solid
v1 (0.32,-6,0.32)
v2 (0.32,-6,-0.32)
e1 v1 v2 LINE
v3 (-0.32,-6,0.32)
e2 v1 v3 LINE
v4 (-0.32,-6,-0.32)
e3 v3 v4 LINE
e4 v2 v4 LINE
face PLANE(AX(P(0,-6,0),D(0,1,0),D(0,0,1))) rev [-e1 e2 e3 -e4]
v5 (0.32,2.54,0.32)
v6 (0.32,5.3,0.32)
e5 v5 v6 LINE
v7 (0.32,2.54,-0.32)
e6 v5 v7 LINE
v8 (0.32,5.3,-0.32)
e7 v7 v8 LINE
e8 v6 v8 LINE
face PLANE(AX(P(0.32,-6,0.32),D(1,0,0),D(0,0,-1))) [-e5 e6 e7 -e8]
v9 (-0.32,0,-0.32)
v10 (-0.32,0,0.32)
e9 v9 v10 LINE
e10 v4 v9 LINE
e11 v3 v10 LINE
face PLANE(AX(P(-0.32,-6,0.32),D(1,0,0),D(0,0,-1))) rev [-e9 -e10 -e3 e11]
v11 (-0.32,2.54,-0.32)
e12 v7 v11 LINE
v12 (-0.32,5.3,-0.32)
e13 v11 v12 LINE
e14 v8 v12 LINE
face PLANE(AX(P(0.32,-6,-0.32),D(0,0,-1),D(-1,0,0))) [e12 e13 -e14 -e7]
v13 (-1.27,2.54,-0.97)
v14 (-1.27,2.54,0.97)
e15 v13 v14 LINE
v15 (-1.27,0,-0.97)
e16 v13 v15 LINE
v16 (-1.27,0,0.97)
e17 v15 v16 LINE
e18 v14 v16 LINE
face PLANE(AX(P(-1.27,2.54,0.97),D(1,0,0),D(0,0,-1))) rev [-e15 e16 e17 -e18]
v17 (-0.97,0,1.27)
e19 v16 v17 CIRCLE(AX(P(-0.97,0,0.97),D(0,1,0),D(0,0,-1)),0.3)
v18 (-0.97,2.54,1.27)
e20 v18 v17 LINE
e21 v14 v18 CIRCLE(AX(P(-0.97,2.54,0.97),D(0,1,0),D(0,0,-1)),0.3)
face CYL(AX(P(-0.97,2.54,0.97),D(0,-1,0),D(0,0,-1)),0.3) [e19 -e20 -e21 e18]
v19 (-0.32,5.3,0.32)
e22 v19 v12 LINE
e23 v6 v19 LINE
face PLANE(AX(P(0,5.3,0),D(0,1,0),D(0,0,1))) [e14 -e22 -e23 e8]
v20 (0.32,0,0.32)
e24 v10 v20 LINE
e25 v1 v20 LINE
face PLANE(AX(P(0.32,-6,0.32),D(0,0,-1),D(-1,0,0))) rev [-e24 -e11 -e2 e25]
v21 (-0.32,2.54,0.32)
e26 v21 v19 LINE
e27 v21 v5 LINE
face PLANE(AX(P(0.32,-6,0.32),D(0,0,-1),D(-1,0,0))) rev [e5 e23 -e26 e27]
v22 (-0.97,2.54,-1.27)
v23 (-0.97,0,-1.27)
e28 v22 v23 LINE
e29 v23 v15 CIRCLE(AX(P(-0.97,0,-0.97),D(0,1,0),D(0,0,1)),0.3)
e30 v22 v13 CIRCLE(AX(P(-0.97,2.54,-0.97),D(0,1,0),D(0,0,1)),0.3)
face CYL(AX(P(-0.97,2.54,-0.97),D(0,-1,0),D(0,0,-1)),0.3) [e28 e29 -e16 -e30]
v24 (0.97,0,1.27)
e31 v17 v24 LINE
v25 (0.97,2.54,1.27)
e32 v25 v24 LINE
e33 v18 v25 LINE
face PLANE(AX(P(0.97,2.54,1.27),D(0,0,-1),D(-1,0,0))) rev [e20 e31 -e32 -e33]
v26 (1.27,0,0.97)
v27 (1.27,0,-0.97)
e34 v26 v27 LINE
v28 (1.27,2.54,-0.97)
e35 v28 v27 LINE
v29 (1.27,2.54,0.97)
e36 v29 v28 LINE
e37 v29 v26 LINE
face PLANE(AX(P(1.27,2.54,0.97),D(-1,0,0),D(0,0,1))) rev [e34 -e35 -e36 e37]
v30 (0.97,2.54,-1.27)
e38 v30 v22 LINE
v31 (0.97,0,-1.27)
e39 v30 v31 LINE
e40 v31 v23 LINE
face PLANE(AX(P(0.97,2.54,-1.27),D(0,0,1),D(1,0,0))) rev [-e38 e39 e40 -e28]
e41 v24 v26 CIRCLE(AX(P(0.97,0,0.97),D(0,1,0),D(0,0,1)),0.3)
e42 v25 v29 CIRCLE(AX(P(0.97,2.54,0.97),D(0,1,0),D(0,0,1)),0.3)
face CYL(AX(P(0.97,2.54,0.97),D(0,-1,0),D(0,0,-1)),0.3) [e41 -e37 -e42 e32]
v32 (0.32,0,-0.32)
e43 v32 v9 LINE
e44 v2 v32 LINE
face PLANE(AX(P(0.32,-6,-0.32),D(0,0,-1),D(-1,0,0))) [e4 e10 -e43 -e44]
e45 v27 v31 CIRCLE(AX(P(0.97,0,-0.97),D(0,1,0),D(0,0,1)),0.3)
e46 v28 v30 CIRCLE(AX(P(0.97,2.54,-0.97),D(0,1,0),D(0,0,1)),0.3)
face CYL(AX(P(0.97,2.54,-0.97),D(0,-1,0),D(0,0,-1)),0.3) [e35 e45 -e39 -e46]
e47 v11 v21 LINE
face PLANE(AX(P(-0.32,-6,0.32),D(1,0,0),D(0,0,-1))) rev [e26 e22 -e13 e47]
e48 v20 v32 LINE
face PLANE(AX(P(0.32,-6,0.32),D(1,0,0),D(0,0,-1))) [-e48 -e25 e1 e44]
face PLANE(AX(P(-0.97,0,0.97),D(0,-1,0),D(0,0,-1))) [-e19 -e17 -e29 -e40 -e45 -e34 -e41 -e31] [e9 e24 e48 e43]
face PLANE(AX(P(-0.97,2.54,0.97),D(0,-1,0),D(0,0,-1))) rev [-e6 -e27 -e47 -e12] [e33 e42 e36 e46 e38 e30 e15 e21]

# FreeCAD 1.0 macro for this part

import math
import FreeCAD as App
import Part
import Sketcher
Q = App.Units.Quantity

doc = App.newDocument("Part")
body = doc.addObject("PartDesign::Body", "Body")

sketch1 = body.newObject("Sketcher::SketchObject", "Sketch")
sketch1.AttachmentSupport = (doc.getObject("XZ_Plane"), [""])
sketch1.MapMode = "FlatFace"
sketch1.addGeometry(Part.LineSegment(App.Vector(-0.97, 1.27, 0), App.Vector(0.97, 1.27, 0)), False)
sketch1.addGeometry(Part.ArcOfCircle(Part.Circle(App.Vector(0.97, 0.97, 0), App.Vector(0, 0, 1), 0.3), math.radians(0), math.radians(90)), False)
sketch1.addGeometry(Part.LineSegment(App.Vector(1.27, 0.97, 0), App.Vector(1.27, -0.97, 0)), False)
sketch1.addGeometry(Part.ArcOfCircle(Part.Circle(App.Vector(0.97, -0.97, 0), App.Vector(0, 0, 1), 0.3), math.radians(-90), math.radians(0)), False)
sketch1.addGeometry(Part.LineSegment(App.Vector(0.97, -1.27, 0), App.Vector(-0.97, -1.27, 0)), False)
sketch1.addGeometry(Part.ArcOfCircle(Part.Circle(App.Vector(-0.97, -0.97, 0), App.Vector(0, 0, 1), 0.3), math.radians(-180), math.radians(-90)), False)
sketch1.addGeometry(Part.LineSegment(App.Vector(-1.27, -0.97, 0), App.Vector(-1.27, 0.97, 0)), False)
sketch1.addGeometry(Part.ArcOfCircle(Part.Circle(App.Vector(-0.97, 0.97, 0), App.Vector(0, 0, 1), 0.3), math.radians(90), math.radians(180)), False)
sketch1.addGeometry(Part.LineSegment(App.Vector(-0.32, 0.32, 0), App.Vector(-0.32, -0.32, 0)), False)
sketch1.addGeometry(Part.LineSegment(App.Vector(-0.32, -0.32, 0), App.Vector(0.32, -0.32, 0)), False)
sketch1.addGeometry(Part.LineSegment(App.Vector(0.32, -0.32, 0), App.Vector(0.32, 0.32, 0)), False)
sketch1.addGeometry(Part.LineSegment(App.Vector(0.32, 0.32, 0), App.Vector(-0.32, 0.32, 0)), False)
sketch1.addConstraint(Sketcher.Constraint("Tangent", 0, 2, 1, 2))
sketch1.addConstraint(Sketcher.Constraint("Tangent", 1, 1, 2, 1))
sketch1.addConstraint(Sketcher.Constraint("Tangent", 2, 2, 3, 2))
sketch1.addConstraint(Sketcher.Constraint("Tangent", 3, 1, 4, 1))
sketch1.addConstraint(Sketcher.Constraint("Tangent", 4, 2, 5, 2))
sketch1.addConstraint(Sketcher.Constraint("Tangent", 5, 1, 6, 1))
sketch1.addConstraint(Sketcher.Constraint("Tangent", 6, 2, 7, 2))
sketch1.addConstraint(Sketcher.Constraint("Tangent", 7, 1, 0, 1))
sketch1.addConstraint(Sketcher.Constraint("Coincident", 8, 2, 9, 1))
sketch1.addConstraint(Sketcher.Constraint("Coincident", 9, 2, 10, 1))
sketch1.addConstraint(Sketcher.Constraint("Coincident", 10, 2, 11, 1))
sketch1.addConstraint(Sketcher.Constraint("Coincident", 11, 2, 8, 1))
sketch1.addConstraint(Sketcher.Constraint("Horizontal", 0))
sketch1.addConstraint(Sketcher.Constraint("Vertical", 2))
sketch1.addConstraint(Sketcher.Constraint("Horizontal", 4))
sketch1.addConstraint(Sketcher.Constraint("Vertical", 6))
sketch1.addConstraint(Sketcher.Constraint("Vertical", 8))
sketch1.addConstraint(Sketcher.Constraint("Horizontal", 9))
sketch1.addConstraint(Sketcher.Constraint("Vertical", 10))
sketch1.addConstraint(Sketcher.Constraint("Horizontal", 11))
sketch1.addConstraint(Sketcher.Constraint("Equal", 1, 3))
sketch1.addConstraint(Sketcher.Constraint("Equal", 3, 5))
sketch1.addConstraint(Sketcher.Constraint("Equal", 5, 7))
sketch1.addConstraint(Sketcher.Constraint("Symmetric", 1, 3, 5, 3, -1, 1))
sketch1.addConstraint(Sketcher.Constraint("Symmetric", 8, 2, 10, 2, -1, 1))
sketch1.addConstraint(Sketcher.Constraint("Equal", 4, 2))
sketch1.addConstraint(Sketcher.Constraint("Equal", 11, 8))
sketch1.addConstraint(Sketcher.Constraint("Radius", 1, Q("0.3 mm")))
sketch1.addConstraint(Sketcher.Constraint("DistanceX", 0, 1, 0, 2, Q("1.94 mm")))
sketch1.addConstraint(Sketcher.Constraint("DistanceX", 9, 1, 9, 2, Q("0.64 mm")))
pad1 = body.newObject("PartDesign::Pad", "Pad")
pad1.Profile = sketch1
pad1.Length = 2.54
pad1.Reversed = True

sketch2 = body.newObject("Sketcher::SketchObject", "Sketch001")
sketch2.AttachmentSupport = (doc.getObject("XZ_Plane"), [""])
sketch2.MapMode = "FlatFace"
sketch2.addGeometry(Part.LineSegment(App.Vector(-0.32, -0.32, 0), App.Vector(-0.32, 0.32, 0)), False)
sketch2.addGeometry(Part.LineSegment(App.Vector(-0.32, 0.32, 0), App.Vector(0.32, 0.32, 0)), False)
sketch2.addGeometry(Part.LineSegment(App.Vector(0.32, 0.32, 0), App.Vector(0.32, -0.32, 0)), False)
sketch2.addGeometry(Part.LineSegment(App.Vector(0.32, -0.32, 0), App.Vector(-0.32, -0.32, 0)), False)
sketch2.addConstraint(Sketcher.Constraint("Coincident", 0, 2, 1, 1))
sketch2.addConstraint(Sketcher.Constraint("Coincident", 1, 2, 2, 1))
sketch2.addConstraint(Sketcher.Constraint("Coincident", 2, 2, 3, 1))
sketch2.addConstraint(Sketcher.Constraint("Coincident", 3, 2, 0, 1))
sketch2.addConstraint(Sketcher.Constraint("Vertical", 0))
sketch2.addConstraint(Sketcher.Constraint("Horizontal", 1))
sketch2.addConstraint(Sketcher.Constraint("Vertical", 2))
sketch2.addConstraint(Sketcher.Constraint("Horizontal", 3))
sketch2.addConstraint(Sketcher.Constraint("Symmetric", 0, 2, 2, 2, -1, 1))
sketch2.addConstraint(Sketcher.Constraint("Equal", 3, 0))
sketch2.addConstraint(Sketcher.Constraint("DistanceX", 1, 1, 1, 2, Q("0.64 mm")))
pad2 = body.newObject("PartDesign::Pad", "Pad001")
pad2.Profile = sketch2
pad2.Type = "TwoLengths"
pad2.Length = 5.3
pad2.Length2 = 6
pad2.Reversed = True

doc.recompute()
